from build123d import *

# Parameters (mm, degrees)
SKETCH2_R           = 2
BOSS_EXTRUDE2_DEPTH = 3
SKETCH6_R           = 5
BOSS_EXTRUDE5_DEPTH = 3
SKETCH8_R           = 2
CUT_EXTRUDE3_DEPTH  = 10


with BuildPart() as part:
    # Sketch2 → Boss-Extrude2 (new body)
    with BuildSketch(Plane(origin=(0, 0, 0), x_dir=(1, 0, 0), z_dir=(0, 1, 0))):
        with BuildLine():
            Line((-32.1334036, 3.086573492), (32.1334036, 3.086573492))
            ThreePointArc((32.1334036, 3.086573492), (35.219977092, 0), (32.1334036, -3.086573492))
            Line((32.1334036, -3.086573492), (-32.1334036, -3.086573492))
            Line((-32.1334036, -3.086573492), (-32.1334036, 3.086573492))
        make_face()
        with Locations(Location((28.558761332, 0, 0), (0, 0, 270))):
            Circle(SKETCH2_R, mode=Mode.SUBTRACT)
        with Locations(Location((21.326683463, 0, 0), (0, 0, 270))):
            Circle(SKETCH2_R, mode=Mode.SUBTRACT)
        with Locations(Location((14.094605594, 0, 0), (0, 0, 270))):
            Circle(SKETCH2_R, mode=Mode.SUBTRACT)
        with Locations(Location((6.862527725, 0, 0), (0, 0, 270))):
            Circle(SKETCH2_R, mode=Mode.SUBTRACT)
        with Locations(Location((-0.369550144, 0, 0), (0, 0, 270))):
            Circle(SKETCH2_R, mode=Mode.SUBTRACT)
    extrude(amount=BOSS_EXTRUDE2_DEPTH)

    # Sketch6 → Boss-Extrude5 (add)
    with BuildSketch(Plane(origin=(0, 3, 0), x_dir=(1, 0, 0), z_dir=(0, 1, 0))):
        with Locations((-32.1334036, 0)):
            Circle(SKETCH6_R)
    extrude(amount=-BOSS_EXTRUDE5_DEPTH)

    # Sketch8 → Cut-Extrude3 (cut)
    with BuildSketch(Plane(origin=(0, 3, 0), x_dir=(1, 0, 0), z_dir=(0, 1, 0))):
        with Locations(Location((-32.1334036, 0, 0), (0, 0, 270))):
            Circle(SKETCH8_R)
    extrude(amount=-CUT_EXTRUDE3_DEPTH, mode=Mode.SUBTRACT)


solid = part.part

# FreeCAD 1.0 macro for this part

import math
import FreeCAD as App
import Part
import Sketcher

V = App.Vector
Q = App.Units.Quantity

doc = App.newDocument("Part")
params = doc.addObject("Spreadsheet::Sheet", "Params")
for row, (alias, value) in enumerate([
    ("sketch1_diameter", "4 mm"),
    ("pad1_length", "3 mm"),
    ("sketch2_diameter", "10 mm"),
    ("pad2_length", "3 mm"),
    ("sketch3_diameter", "4 mm"),
    ("pocket1_length", "10 mm"),
], start=1):
    params.set(f"A{row}", alias)
    params.set(f"B{row}", "=" + value)
    params.setAlias(f"B{row}", alias)

body = doc.addObject("PartDesign::Body", "Body")

sketch1 = body.newObject("Sketcher::SketchObject", "Sketch")
sketch1.AttachmentSupport = (doc.getObject("XZ_Plane"), [""])
sketch1.MapMode = "FlatFace"
sketch1.addGeometry([
    Part.LineSegment(V(32.1, -3.1, 0), V(-32.1, -3.1, 0)),
    Part.LineSegment(V(-32.1, -3.1, 0), V(-32.1, 3.1, 0)),
    Part.LineSegment(V(-32.1, 3.1, 0), V(32.1, 3.1, 0)),
    Part.ArcOfCircle(Part.Circle(V(32.1, 0, 0), V(0, 0, 1), 3.1), math.radians(-90), math.radians(90)),
    Part.Circle(V(28.6, 0, 0), V(0, 0, 1), 2),
    Part.Circle(V(21.3, 0, 0), V(0, 0, 1), 2),
    Part.Circle(V(14.1, 0, 0), V(0, 0, 1), 2),
    Part.Circle(V(6.9, 0, 0), V(0, 0, 1), 2),
    Part.Circle(V(-0.4, 0, 0), V(0, 0, 1), 2),
], False)
sketch1.addConstraint([
    Sketcher.Constraint("Coincident", 0, 2, 1, 1),
    Sketcher.Constraint("Coincident", 1, 2, 2, 1),
    Sketcher.Constraint("Tangent", 2, 2, 3, 2),
    Sketcher.Constraint("Tangent", 3, 1, 0, 1),
    Sketcher.Constraint("Horizontal", 0),
    Sketcher.Constraint("Vertical", 1),
    Sketcher.Constraint("Horizontal", 2),
    Sketcher.Constraint("Equal", 4, 5),
    Sketcher.Constraint("Equal", 5, 6),
    Sketcher.Constraint("Equal", 6, 7),
    Sketcher.Constraint("Equal", 7, 8),
    Sketcher.Constraint("Symmetric", 0, 2, 2, 2, -1, 1),
    Sketcher.Constraint("PointOnObject", 4, 3, -1),
    Sketcher.Constraint("PointOnObject", 5, 3, -1),
    Sketcher.Constraint("PointOnObject", 6, 3, -1),
    Sketcher.Constraint("PointOnObject", 7, 3, -1),
    Sketcher.Constraint("PointOnObject", 8, 3, -1),
    Sketcher.Constraint("Diameter", 4, Q("4 mm")),
    Sketcher.Constraint("Radius", 3, Q("3.086573 mm")),
    Sketcher.Constraint("DistanceX", 6, 3, 3, 3, Q("18.038798 mm")),
    Sketcher.Constraint("DistanceX", 0, 2, 0, 1, Q("64.266807 mm")),
    Sketcher.Constraint("DistanceX", -1, 1, 4, 3, Q("28.558761 mm")),
    Sketcher.Constraint("DistanceX", 8, 3, -1, 1, Q("0.36955 mm")),
    Sketcher.Constraint("DistanceX", 5, 3, 3, 3, Q("10.80672 mm")),
    Sketcher.Constraint("DistanceX", 0, 2, 7, 3, Q("38.995931 mm")),
])
sketch1.setExpression("Constraints[17]", "Params.sketch1_diameter")
pad1 = body.newObject("PartDesign::Pad", "Pad")
pad1.Profile = sketch1
pad1.setExpression("Length", "Params.pad1_length")
pad1.Reversed = True

sketch2 = body.newObject("Sketcher::SketchObject", "Sketch001")
sketch2.AttachmentSupport = (doc.getObject("XZ_Plane"), [""])
sketch2.MapMode = "FlatFace"
sketch2.AttachmentOffset = App.Placement(V(0, 0, -3), App.Rotation())
sketch2.addGeometry(Part.Circle(V(-32, 0, 0), V(0, 0, 1), 5), False)
sketch2.addConstraint([
    Sketcher.Constraint("PointOnObject", 0, 3, -1),
    Sketcher.Constraint("Diameter", 0, Q("10 mm")),
    Sketcher.Constraint("DistanceX", 0, 3, -1, 1, Q("32.133404 mm")),
])
sketch2.setExpression("Constraints[1]", "Params.sketch2_diameter")
pad2 = body.newObject("PartDesign::Pad", "Pad001")
pad2.Profile = sketch2
pad2.setExpression("Length", "Params.pad2_length")

sketch3 = body.newObject("Sketcher::SketchObject", "Sketch002")
sketch3.AttachmentSupport = (doc.getObject("XZ_Plane"), [""])
sketch3.MapMode = "FlatFace"
sketch3.AttachmentOffset = App.Placement(V(0, 0, -3), App.Rotation())
sketch3.addGeometry(Part.Circle(V(-32.1, 0, 0), V(0, 0, 1), 2), False)
sketch3.addConstraint([
    Sketcher.Constraint("PointOnObject", 0, 3, -1),
    Sketcher.Constraint("Diameter", 0, Q("4 mm")),
    Sketcher.Constraint("DistanceX", 0, 3, -1, 1, Q("32.133404 mm")),
])
sketch3.setExpression("Constraints[1]", "Params.sketch3_diameter")
pocket1 = body.newObject("PartDesign::Pocket", "Pocket")
pocket1.Profile = sketch3
pocket1.setExpression("Length", "Params.pocket1_length")
pocket1.Reversed = True

doc.recompute()
